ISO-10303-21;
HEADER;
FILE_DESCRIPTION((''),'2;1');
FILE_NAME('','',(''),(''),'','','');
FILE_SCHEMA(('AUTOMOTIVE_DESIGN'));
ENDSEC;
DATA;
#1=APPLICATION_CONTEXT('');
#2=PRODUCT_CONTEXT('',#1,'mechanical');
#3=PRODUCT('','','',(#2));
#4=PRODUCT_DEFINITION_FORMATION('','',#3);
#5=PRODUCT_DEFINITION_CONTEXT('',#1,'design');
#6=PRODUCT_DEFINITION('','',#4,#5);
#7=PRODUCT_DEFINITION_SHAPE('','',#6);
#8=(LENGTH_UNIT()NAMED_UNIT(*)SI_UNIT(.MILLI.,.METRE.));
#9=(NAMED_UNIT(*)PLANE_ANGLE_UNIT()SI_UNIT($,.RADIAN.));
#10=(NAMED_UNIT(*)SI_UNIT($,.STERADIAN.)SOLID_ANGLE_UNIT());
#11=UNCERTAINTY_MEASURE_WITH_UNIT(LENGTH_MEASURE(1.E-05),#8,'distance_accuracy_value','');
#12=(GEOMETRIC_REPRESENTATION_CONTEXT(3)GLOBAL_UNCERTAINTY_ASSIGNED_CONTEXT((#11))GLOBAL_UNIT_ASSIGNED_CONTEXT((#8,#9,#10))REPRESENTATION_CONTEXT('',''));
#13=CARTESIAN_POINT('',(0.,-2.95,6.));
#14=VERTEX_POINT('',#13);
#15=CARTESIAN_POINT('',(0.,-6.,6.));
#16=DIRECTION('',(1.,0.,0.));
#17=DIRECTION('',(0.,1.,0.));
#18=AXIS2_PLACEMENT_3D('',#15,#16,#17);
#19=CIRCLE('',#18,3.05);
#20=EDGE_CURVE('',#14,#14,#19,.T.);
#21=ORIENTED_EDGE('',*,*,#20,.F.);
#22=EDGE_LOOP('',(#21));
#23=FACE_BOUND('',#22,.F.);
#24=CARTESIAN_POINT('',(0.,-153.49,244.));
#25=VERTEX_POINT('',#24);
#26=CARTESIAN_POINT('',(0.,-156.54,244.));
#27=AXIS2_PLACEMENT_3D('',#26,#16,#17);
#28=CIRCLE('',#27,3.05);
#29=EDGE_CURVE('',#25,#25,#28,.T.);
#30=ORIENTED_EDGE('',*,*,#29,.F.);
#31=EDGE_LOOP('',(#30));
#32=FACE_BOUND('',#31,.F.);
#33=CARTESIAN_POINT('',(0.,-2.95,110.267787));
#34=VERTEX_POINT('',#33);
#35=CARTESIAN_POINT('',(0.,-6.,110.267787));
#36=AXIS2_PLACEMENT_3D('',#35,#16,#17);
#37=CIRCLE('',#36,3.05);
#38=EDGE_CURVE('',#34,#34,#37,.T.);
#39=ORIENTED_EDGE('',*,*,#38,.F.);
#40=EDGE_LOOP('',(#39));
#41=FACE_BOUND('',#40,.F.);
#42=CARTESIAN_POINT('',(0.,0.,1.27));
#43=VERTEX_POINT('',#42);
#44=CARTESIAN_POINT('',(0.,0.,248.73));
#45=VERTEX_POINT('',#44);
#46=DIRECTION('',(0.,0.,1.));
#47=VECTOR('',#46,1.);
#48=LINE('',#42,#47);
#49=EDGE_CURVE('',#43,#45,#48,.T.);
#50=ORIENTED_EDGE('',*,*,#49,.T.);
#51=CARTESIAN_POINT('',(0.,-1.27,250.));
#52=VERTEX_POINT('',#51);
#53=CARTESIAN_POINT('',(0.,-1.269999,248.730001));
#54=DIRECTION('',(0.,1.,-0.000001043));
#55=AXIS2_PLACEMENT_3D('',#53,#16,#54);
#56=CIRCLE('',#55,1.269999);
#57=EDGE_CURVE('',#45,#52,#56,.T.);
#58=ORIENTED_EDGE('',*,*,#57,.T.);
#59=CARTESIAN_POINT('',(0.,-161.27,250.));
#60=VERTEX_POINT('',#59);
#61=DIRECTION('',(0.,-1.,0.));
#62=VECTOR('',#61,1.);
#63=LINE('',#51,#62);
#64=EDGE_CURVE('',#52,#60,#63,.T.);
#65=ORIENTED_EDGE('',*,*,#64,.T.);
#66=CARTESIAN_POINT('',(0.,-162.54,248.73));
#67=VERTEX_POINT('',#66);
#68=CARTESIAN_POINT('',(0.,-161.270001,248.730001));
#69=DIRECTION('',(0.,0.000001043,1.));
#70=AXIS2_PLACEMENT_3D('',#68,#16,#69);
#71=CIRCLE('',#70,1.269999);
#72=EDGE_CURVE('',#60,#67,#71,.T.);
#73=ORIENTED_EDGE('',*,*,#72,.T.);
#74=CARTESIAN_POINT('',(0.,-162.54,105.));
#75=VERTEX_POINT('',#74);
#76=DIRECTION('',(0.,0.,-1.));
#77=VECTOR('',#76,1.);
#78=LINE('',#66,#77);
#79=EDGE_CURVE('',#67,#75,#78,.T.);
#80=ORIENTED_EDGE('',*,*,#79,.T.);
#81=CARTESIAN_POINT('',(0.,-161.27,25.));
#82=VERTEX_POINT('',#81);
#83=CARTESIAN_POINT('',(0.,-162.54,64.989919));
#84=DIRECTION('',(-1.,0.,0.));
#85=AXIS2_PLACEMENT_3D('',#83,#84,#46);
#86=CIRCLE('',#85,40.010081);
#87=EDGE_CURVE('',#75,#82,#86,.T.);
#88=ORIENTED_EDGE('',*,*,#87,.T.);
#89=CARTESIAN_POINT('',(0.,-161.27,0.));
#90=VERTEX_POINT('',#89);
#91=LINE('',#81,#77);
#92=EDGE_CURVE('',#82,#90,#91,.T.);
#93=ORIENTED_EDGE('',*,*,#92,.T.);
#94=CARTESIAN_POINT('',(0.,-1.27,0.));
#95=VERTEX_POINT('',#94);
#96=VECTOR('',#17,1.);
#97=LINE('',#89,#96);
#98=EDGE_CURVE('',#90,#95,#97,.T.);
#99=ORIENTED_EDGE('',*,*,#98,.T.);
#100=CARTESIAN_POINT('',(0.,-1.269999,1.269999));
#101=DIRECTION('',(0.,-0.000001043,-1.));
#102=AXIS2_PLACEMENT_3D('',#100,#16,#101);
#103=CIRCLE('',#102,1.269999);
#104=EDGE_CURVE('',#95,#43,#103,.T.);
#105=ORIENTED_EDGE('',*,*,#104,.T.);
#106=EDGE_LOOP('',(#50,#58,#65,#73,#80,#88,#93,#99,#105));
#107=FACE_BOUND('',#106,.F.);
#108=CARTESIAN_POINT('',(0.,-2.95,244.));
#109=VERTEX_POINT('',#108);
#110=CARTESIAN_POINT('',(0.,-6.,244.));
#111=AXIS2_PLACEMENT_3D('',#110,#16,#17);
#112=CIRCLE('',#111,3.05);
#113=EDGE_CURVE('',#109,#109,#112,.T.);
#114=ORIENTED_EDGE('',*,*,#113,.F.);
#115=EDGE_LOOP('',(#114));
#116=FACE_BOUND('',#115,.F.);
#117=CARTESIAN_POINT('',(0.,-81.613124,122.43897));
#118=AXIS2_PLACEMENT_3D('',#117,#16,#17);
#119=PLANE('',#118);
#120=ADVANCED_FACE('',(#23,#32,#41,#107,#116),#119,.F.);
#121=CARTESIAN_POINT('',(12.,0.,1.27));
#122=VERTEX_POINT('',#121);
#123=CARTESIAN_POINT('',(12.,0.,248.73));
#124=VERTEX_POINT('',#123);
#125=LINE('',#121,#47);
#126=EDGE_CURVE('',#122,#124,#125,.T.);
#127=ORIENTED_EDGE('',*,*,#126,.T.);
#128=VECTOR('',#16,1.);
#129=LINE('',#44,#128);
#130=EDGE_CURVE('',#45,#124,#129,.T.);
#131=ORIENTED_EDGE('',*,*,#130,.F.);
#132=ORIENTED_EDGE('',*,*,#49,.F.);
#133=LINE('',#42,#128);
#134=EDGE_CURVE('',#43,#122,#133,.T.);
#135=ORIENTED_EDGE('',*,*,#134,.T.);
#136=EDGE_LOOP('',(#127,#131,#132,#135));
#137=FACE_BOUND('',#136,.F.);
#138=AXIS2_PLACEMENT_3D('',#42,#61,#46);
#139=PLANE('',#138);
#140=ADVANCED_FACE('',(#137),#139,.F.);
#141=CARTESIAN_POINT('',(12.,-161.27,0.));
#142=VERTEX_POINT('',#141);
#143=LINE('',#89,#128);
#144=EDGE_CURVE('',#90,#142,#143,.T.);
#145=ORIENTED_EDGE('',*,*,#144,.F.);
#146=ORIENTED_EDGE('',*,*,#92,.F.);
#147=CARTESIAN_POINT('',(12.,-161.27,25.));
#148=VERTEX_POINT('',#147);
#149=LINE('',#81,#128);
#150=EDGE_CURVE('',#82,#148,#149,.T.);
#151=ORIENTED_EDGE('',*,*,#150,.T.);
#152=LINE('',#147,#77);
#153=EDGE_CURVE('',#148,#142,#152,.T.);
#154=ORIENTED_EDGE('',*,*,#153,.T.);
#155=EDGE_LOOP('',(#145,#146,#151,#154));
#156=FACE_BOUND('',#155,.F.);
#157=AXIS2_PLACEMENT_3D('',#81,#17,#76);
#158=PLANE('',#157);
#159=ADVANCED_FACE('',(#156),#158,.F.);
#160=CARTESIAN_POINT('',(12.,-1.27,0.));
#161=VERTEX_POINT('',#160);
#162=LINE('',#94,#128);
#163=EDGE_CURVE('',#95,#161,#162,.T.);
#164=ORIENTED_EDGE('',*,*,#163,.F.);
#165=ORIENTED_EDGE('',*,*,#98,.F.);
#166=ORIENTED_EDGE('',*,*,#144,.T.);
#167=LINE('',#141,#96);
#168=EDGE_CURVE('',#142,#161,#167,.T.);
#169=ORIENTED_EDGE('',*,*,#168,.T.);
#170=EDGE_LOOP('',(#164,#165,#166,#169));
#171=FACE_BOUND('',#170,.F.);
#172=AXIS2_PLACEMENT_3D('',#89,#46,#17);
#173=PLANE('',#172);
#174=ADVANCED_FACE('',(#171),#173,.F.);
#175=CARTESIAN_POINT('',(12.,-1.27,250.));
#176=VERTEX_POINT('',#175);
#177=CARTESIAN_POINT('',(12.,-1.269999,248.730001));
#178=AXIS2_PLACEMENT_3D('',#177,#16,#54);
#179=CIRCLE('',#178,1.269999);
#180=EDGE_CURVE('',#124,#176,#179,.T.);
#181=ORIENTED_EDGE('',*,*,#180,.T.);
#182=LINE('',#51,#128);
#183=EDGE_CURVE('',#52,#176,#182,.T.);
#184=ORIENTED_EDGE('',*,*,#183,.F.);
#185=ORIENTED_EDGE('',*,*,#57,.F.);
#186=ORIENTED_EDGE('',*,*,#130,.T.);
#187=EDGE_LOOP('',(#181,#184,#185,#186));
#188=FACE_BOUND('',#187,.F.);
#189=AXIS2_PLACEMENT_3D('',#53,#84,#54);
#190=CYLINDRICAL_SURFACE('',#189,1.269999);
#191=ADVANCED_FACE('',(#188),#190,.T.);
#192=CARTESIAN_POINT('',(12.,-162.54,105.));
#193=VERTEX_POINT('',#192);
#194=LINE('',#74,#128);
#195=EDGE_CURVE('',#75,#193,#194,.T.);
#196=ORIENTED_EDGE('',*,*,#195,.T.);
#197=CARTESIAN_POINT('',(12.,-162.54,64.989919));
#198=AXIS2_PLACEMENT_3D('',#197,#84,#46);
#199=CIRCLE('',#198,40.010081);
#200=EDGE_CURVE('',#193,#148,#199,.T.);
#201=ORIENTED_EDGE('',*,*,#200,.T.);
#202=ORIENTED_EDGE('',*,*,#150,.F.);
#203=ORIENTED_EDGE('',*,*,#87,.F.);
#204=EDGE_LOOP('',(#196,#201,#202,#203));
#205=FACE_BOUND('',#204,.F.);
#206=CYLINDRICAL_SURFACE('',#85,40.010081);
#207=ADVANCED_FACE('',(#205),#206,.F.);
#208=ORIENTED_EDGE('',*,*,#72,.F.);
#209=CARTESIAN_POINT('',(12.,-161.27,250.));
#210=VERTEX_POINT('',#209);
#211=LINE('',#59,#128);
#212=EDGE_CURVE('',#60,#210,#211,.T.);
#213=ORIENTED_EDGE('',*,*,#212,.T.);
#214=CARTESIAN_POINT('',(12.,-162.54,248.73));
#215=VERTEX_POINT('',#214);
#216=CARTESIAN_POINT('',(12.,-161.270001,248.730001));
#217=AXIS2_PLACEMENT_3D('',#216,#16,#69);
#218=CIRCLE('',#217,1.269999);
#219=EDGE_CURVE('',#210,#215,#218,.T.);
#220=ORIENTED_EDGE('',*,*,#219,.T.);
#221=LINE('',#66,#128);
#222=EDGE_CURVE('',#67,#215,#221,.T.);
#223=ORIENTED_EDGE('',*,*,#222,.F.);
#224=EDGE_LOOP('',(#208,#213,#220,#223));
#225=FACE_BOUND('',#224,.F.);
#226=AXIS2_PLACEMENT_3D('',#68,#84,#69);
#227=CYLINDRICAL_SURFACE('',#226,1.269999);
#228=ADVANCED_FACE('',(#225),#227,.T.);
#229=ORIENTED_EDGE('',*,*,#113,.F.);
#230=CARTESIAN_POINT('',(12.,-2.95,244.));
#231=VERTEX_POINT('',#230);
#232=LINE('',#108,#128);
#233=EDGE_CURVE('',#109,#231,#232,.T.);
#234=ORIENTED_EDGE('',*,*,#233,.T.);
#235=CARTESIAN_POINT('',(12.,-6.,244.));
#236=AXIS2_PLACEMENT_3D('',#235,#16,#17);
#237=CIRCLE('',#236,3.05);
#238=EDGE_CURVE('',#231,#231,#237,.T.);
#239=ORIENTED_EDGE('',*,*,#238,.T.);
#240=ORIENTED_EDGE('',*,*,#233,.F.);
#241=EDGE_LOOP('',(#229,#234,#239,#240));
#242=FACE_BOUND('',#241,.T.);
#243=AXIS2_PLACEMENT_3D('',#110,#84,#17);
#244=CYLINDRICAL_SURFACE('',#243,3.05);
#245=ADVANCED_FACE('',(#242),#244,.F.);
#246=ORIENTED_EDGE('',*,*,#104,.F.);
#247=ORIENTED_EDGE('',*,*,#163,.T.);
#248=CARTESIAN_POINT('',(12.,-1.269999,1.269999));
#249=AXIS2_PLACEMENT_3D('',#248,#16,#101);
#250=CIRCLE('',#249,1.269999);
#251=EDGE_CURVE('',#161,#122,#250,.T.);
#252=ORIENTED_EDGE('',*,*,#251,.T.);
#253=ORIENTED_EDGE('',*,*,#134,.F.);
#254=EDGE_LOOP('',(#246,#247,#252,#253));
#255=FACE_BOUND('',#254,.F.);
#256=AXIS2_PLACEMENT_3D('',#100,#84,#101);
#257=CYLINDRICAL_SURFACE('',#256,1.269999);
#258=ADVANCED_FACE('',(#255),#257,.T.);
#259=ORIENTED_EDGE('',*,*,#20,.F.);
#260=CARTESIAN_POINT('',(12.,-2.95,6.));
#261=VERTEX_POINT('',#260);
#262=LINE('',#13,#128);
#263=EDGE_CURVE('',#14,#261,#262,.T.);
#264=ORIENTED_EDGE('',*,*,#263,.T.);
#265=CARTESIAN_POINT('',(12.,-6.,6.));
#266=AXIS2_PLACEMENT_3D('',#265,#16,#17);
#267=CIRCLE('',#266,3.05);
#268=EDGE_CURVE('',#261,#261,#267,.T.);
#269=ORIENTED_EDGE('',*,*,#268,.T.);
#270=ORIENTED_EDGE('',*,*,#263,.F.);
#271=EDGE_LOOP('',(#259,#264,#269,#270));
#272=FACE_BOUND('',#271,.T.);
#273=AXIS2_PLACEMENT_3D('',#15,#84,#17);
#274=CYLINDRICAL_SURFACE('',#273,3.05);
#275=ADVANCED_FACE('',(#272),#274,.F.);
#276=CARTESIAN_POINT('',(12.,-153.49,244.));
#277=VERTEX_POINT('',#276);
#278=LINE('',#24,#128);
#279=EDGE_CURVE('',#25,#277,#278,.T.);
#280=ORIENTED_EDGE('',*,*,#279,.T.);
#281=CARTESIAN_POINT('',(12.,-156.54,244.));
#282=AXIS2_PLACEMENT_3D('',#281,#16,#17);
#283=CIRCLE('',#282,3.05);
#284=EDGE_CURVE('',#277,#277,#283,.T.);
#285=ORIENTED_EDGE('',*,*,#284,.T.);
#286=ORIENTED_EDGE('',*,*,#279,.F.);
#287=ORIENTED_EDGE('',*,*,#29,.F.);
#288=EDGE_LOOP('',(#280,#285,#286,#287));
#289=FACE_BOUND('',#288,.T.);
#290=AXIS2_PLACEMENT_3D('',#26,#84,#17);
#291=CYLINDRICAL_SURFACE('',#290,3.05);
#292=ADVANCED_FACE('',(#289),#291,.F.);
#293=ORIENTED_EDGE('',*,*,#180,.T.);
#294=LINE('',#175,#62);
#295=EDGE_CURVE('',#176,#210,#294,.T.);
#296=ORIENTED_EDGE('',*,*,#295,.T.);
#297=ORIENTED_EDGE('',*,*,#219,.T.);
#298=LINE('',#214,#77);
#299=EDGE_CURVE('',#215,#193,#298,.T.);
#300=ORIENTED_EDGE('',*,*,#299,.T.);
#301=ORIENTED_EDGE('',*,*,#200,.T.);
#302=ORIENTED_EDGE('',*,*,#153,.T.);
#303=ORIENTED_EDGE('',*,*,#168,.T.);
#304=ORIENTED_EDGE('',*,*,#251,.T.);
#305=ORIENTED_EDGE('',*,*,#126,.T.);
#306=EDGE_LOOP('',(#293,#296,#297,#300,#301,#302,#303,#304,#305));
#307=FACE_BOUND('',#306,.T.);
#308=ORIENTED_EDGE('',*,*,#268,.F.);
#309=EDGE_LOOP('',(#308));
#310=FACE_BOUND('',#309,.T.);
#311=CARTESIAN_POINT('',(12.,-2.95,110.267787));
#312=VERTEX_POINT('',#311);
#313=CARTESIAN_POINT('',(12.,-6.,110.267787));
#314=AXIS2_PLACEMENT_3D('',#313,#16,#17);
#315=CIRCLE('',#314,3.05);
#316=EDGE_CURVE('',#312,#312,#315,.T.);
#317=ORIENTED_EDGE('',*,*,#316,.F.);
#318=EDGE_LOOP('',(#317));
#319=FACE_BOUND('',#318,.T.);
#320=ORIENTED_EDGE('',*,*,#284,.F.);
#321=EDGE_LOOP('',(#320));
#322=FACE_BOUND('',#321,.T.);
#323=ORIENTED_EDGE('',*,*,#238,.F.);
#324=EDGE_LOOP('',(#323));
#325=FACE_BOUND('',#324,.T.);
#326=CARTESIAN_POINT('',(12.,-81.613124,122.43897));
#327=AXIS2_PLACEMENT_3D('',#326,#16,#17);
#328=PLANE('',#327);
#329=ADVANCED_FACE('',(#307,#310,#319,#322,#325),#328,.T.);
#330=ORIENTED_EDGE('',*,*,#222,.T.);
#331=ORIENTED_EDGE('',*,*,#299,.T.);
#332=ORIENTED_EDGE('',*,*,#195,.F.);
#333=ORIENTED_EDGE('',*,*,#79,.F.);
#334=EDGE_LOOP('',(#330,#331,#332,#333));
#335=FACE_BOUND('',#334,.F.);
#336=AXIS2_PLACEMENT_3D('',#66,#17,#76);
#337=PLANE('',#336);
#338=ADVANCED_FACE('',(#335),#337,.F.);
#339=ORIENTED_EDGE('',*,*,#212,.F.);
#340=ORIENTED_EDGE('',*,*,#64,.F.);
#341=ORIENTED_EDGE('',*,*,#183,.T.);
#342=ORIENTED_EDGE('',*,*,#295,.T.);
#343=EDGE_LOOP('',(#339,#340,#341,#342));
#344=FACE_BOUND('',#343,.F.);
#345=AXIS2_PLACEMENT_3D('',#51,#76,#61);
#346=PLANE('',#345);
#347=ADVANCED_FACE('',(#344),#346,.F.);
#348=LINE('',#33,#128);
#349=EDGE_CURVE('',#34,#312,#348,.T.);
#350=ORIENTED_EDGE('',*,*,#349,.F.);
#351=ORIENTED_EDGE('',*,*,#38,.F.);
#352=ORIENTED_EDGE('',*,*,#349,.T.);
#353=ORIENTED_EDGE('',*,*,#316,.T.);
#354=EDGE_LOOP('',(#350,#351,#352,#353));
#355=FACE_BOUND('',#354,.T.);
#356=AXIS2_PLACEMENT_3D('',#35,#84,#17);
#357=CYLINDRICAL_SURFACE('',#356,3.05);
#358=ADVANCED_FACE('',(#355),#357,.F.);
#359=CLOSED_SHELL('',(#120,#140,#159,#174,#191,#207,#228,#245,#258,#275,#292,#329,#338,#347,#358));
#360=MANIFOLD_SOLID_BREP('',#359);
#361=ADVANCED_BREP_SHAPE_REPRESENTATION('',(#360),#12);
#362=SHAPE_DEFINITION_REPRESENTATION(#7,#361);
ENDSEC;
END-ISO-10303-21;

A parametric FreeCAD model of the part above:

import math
import FreeCAD as App
import Part
import Sketcher
Q = App.Units.Quantity

doc = App.newDocument("Part")
body = doc.addObject("PartDesign::Body", "Body")

# Sketch on YZ plane
sketch1 = body.newObject("Sketcher::SketchObject", "Sketch")
sketch1.AttachmentSupport = (doc.getObject("YZ_Plane"), [""])
sketch1.MapMode = "FlatFace"
sketch1.addGeometry(Part.LineSegment(App.Vector(-161.27, 0, 0), App.Vector(-1.27, 0, 0)), False)
sketch1.addGeometry(Part.ArcOfCircle(Part.Circle(App.Vector(-1.269999, 1.269999, 0), App.Vector(0, 0, 1), 1.269999), math.radians(-90.00006), math.radians(0.00006)), False)
sketch1.addGeometry(Part.LineSegment(App.Vector(0, 1.27, 0), App.Vector(0, 248.73, 0)), False)
sketch1.addGeometry(Part.ArcOfCircle(Part.Circle(App.Vector(-1.269999, 248.730001, 0), App.Vector(0, 0, 1), 1.269999), math.radians(-0.00006), math.radians(90.00006)), False)
sketch1.addGeometry(Part.LineSegment(App.Vector(-1.27, 250, 0), App.Vector(-161.27, 250, 0)), False)
sketch1.addGeometry(Part.ArcOfCircle(Part.Circle(App.Vector(-161.270001, 248.730001, 0), App.Vector(0, 0, 1), 1.269999), math.radians(89.99994), math.radians(180.00006)), False)
sketch1.addGeometry(Part.LineSegment(App.Vector(-162.54, 248.73, 0), App.Vector(-162.54, 105, 0)), False)
sketch1.addGeometry(Part.ArcOfCircle(Part.Circle(App.Vector(-162.54, 64.989919, 0), App.Vector(0, 0, 1), 40.010081), math.radians(-88.181012), math.radians(90)), False)
sketch1.addGeometry(Part.LineSegment(App.Vector(-161.27, 25, 0), App.Vector(-161.27, 0, 0)), False)
sketch1.addGeometry(Part.Circle(App.Vector(-6, 6, 0), App.Vector(0, 0, 1), 3.05), False)
sketch1.addGeometry(Part.Circle(App.Vector(-6, 110.267787, 0), App.Vector(0, 0, 1), 3.05), False)
sketch1.addGeometry(Part.Circle(App.Vector(-156.54, 244, 0), App.Vector(0, 0, 1), 3.05), False)
sketch1.addGeometry(Part.Circle(App.Vector(-6, 244, 0), App.Vector(0, 0, 1), 3.05), False)
sketch1.addConstraint(Sketcher.Constraint("Tangent", 0, 2, 1, 1))
sketch1.addConstraint(Sketcher.Constraint("Tangent", 1, 2, 2, 1))
sketch1.addConstraint(Sketcher.Constraint("Tangent", 2, 2, 3, 1))
sketch1.addConstraint(Sketcher.Constraint("Tangent", 3, 2, 4, 1))
sketch1.addConstraint(Sketcher.Constraint("Tangent", 4, 2, 5, 1))
sketch1.addConstraint(Sketcher.Constraint("Tangent", 5, 2, 6, 1))
sketch1.addConstraint(Sketcher.Constraint("Coincident", 6, 2, 7, 2))
sketch1.addConstraint(Sketcher.Constraint("Coincident", 7, 1, 8, 1))
sketch1.addConstraint(Sketcher.Constraint("Coincident", 8, 2, 0, 1))
sketch1.addConstraint(Sketcher.Constraint("Horizontal", 0))
sketch1.addConstraint(Sketcher.Constraint("Vertical", 2))
sketch1.addConstraint(Sketcher.Constraint("Horizontal", 4))
sketch1.addConstraint(Sketcher.Constraint("Vertical", 6))
sketch1.addConstraint(Sketcher.Constraint("Vertical", 8))
sketch1.addConstraint(Sketcher.Constraint("Equal", 1, 3))
sketch1.addConstraint(Sketcher.Constraint("Equal", 3, 5))
sketch1.addConstraint(Sketcher.Constraint("Equal", 9, 10))
sketch1.addConstraint(Sketcher.Constraint("Equal", 10, 11))
sketch1.addConstraint(Sketcher.Constraint("Equal", 11, 12))
sketch1.addConstraint(Sketcher.Constraint("PointOnObject", 0, 2, -1))
sketch1.addConstraint(Sketcher.Constraint("PointOnObject", 1, 2, -2))
sketch1.addConstraint(Sketcher.Constraint("Horizontal", 11, 3, 12, 3))
sketch1.addConstraint(Sketcher.Constraint("Vertical", 9, 3, 10, 3))
sketch1.addConstraint(Sketcher.Constraint("Vertical", 10, 3, 12, 3))
sketch1.addConstraint(Sketcher.Constraint("Vertical", 7, 3, 5, 2))
sketch1.addConstraint(Sketcher.Constraint("Vertical", 4, 2, 7, 1))
sketch1.addConstraint(Sketcher.Constraint("Diameter", 9, Q("6.1 mm")))
sketch1.addConstraint(Sketcher.Constraint("DistanceX", 0, 1, 0, 2, Q("160 mm")))
sketch1.addConstraint(Sketcher.Constraint("DistanceY", 8, 2, 8, 1, Q("25 mm")))
sketch1.addConstraint(Sketcher.Constraint("Radius", 1, Q("1.269999 mm")))
sketch1.addConstraint(Sketcher.Constraint("DistanceX", 9, 3, -1, 1, Q("6 mm")))
sketch1.addConstraint(Sketcher.Constraint("DistanceY", -1, 1, 9, 3, Q("6 mm")))
sketch1.addConstraint(Sketcher.Constraint("DistanceY", -1, 1, 11, 3, Q("244 mm")))
sketch1.addConstraint(Sketcher.Constraint("DistanceY", -1, 1, 3, 2, Q("250 mm")))
sketch1.addConstraint(Sketcher.Constraint("DistanceY", -1, 1, 6, 2, Q("105 mm")))
sketch1.addConstraint(Sketcher.Constraint("DistanceX", 7, 3, 11, 3, Q("6 mm")))
sketch1.addConstraint(Sketcher.Constraint("DistanceY", 1, 3, 10, 3, Q("108.997788 mm")))
pad1 = body.newObject("PartDesign::Pad", "Pad")
pad1.Profile = sketch1
pad1.Length = 12

doc.recompute()
